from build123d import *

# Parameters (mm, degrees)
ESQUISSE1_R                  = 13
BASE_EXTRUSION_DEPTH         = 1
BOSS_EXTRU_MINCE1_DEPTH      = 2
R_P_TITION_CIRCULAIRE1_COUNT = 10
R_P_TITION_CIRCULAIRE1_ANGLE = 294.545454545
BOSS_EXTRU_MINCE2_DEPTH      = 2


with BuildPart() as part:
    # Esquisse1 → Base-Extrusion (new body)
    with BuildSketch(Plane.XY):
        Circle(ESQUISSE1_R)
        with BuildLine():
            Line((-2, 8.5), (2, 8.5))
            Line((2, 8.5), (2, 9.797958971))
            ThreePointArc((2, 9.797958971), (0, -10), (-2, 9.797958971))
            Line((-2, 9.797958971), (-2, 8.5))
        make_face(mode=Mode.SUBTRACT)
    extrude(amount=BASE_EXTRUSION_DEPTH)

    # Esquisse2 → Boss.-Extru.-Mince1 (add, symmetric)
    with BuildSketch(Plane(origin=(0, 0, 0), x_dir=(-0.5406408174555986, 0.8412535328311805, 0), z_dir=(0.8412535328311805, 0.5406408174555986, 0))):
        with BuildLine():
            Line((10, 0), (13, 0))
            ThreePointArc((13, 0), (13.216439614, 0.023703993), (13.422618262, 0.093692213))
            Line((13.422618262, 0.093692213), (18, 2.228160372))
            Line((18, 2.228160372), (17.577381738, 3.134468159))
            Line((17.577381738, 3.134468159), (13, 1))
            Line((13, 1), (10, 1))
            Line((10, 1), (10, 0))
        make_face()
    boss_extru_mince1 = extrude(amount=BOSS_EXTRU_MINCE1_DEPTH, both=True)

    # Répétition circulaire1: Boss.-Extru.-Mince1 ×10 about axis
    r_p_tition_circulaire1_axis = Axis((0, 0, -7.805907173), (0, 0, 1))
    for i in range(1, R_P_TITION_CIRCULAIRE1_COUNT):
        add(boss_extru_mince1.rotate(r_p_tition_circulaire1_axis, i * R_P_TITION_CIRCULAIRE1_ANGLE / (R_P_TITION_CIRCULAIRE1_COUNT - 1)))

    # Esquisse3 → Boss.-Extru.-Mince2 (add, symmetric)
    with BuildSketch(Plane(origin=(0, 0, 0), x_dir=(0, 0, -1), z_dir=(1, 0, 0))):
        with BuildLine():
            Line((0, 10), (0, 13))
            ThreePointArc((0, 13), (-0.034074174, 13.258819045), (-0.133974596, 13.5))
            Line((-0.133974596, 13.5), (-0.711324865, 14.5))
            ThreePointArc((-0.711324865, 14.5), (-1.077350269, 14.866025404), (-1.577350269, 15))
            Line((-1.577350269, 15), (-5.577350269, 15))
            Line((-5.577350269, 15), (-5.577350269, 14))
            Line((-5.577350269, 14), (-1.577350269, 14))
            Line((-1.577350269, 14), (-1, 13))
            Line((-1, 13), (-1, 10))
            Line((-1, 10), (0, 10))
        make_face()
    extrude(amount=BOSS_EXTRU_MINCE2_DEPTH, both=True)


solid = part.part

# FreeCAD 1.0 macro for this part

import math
import FreeCAD as App
import Part
import Sketcher
Q = App.Units.Quantity

doc = App.newDocument("Part")
body = doc.addObject("PartDesign::Body", "Body")

sketch1 = body.newObject("Sketcher::SketchObject", "Sketch")
sketch1.AttachmentSupport = (doc.getObject("XY_Plane"), [""])
sketch1.MapMode = "FlatFace"
sketch1.addGeometry([
    Part.Circle(App.Vector(0, 0, 0), App.Vector(0, 0, 1), 13),
    Part.LineSegment(App.Vector(-2, 9.8, 0), App.Vector(-2, 8.5, 0)),
    Part.LineSegment(App.Vector(-2, 8.5, 0), App.Vector(2, 8.5, 0)),
    Part.LineSegment(App.Vector(2, 8.5, 0), App.Vector(2, 9.8, 0)),
    Part.ArcOfCircle(Part.Circle(App.Vector(0, 0, 0), App.Vector(0, 0, 1), 10), math.radians(102), math.radians(438)),
], False)
sketch1.addConstraint([
    Sketcher.Constraint("Coincident", 1, 2, 2, 1),
    Sketcher.Constraint("Coincident", 2, 2, 3, 1),
    Sketcher.Constraint("Coincident", 3, 2, 4, 2),
    Sketcher.Constraint("Coincident", 4, 1, 1, 1),
    Sketcher.Constraint("Vertical", 1),
    Sketcher.Constraint("Horizontal", 2),
    Sketcher.Constraint("Vertical", 3),
    Sketcher.Constraint("Coincident", 0, 3, -1, 1),
    Sketcher.Constraint("Coincident", 4, 3, -1, 1),
    Sketcher.Constraint("Horizontal", 3, 2, 4, 1),
    Sketcher.Constraint("Diameter", 0, Q("26 mm")),
    Sketcher.Constraint("Radius", 4, Q("10 mm")),
    Sketcher.Constraint("DistanceX", 2, 1, 2, 2, Q("4 mm")),
    Sketcher.Constraint("DistanceY", -1, 1, 1, 2, Q("8.5 mm")),
])
pad1 = body.newObject("PartDesign::Pad", "Pad")
pad1.Profile = sketch1
pad1.Length = 1

sketch2 = body.newObject("Sketcher::SketchObject", "Sketch001")
sketch2.Placement = App.Placement(App.Vector(0, 0, 0), App.Rotation(App.Vector(-0.540640817, 0.841253533, 0), App.Vector(0, 0, 1), App.Vector(0.841253533, 0.540640817, 0), "ZXY"))
sketch2.addGeometry([
    Part.LineSegment(App.Vector(10, 0, 0), App.Vector(13, 0, 0)),
    Part.ArcOfCircle(Part.Circle(App.Vector(13, 1, 0), App.Vector(0, 0, 1), 1), math.radians(-90), math.radians(-65)),
    Part.LineSegment(App.Vector(13.42, 0.09, 0), App.Vector(18, 2.23, 0)),
    Part.LineSegment(App.Vector(18, 2.23, 0), App.Vector(17.58, 3.13, 0)),
    Part.LineSegment(App.Vector(17.58, 3.13, 0), App.Vector(13, 1, 0)),
    Part.LineSegment(App.Vector(13, 1, 0), App.Vector(10, 1, 0)),
    Part.LineSegment(App.Vector(10, 1, 0), App.Vector(10, 0, 0)),
], False)
sketch2.addConstraint([
    Sketcher.Constraint("Tangent", 0, 2, 1, 1),
    Sketcher.Constraint("Tangent", 1, 2, 2, 1),
    Sketcher.Constraint("Coincident", 2, 2, 3, 1),
    Sketcher.Constraint("Coincident", 3, 2, 4, 1),
    Sketcher.Constraint("Coincident", 4, 2, 5, 1),
    Sketcher.Constraint("Coincident", 5, 2, 6, 1),
    Sketcher.Constraint("Coincident", 6, 2, 0, 1),
    Sketcher.Constraint("Horizontal", 0),
    Sketcher.Constraint("Horizontal", 5),
    Sketcher.Constraint("Vertical", 6),
    Sketcher.Constraint("Coincident", 4, 2, 1, 3),
    Sketcher.Constraint("PointOnObject", 0, 2, -1),
    Sketcher.Constraint("Perpendicular", 2, 3),
    Sketcher.Constraint("Perpendicular", 3, 4),
    Sketcher.Constraint("Radius", 1, Q("1 mm")),
    Sketcher.Constraint("DistanceX", 0, 1, 0, 2, Q("3 mm")),
    Sketcher.Constraint("Angle", 2, Q("25 deg")),
    Sketcher.Constraint("DistanceX", -1, 1, 1, 3, Q("13 mm")),
    Sketcher.Constraint("DistanceX", -1, 1, 2, 2, Q("18 mm")),
])
pad2 = body.newObject("PartDesign::Pad", "Pad001")
pad2.Profile = sketch2
pad2.Length = 4
pad2.Midplane = True
doc.recompute()

polarpattern = body.newObject("PartDesign::PolarPattern", "PolarPattern")
polarpattern.Originals = [pad2]
polarpattern.Axis = (doc.getObject("Z_Axis"), [""])
polarpattern.Angle = 294.545455
polarpattern.Occurrences = 10
body.Tip = polarpattern

sketch3 = body.newObject("Sketcher::SketchObject", "Sketch002")
sketch3.AttachmentSupport = (doc.getObject("YZ_Plane"), [""])
sketch3.MapMode = "FlatFace"
sketch3.addGeometry([
    Part.LineSegment(App.Vector(10, 0, 0), App.Vector(13, 0, 0)),
    Part.ArcOfCircle(Part.Circle(App.Vector(13, 1, 0), App.Vector(0, 0, 1), 1), math.radians(-90), math.radians(-60)),
    Part.LineSegment(App.Vector(13.5, 0.1, 0), App.Vector(14.5, 0.7, 0)),
    Part.ArcOfCircle(Part.Circle(App.Vector(14, 1.6, 0), App.Vector(0, 0, 1), 1), math.radians(-60), math.radians(0)),
    Part.LineSegment(App.Vector(15, 1.6, 0), App.Vector(15, 5.6, 0)),
    Part.LineSegment(App.Vector(15, 5.6, 0), App.Vector(14, 5.6, 0)),
    Part.LineSegment(App.Vector(14, 5.6, 0), App.Vector(14, 1.6, 0)),
    Part.LineSegment(App.Vector(14, 1.6, 0), App.Vector(13, 1, 0)),
    Part.LineSegment(App.Vector(13, 1, 0), App.Vector(10, 1, 0)),
    Part.LineSegment(App.Vector(10, 1, 0), App.Vector(10, 0, 0)),
], False)
sketch3.addConstraint([
    Sketcher.Constraint("Tangent", 0, 2, 1, 1),
    Sketcher.Constraint("Tangent", 1, 2, 2, 1),
    Sketcher.Constraint("Tangent", 2, 2, 3, 1),
    Sketcher.Constraint("Tangent", 3, 2, 4, 1),
    Sketcher.Constraint("Coincident", 4, 2, 5, 1),
    Sketcher.Constraint("Coincident", 5, 2, 6, 1),
    Sketcher.Constraint("Coincident", 6, 2, 7, 1),
    Sketcher.Constraint("Coincident", 7, 2, 8, 1),
    Sketcher.Constraint("Coincident", 8, 2, 9, 1),
    Sketcher.Constraint("Coincident", 9, 2, 0, 1),
    Sketcher.Constraint("Horizontal", 0),
    Sketcher.Constraint("Vertical", 4),
    Sketcher.Constraint("Horizontal", 5),
    Sketcher.Constraint("Vertical", 6),
    Sketcher.Constraint("Horizontal", 8),
    Sketcher.Constraint("Vertical", 9),
    Sketcher.Constraint("Coincident", 6, 2, 3, 3),
    Sketcher.Constraint("Coincident", 7, 2, 1, 3),
    Sketcher.Constraint("Equal", 1, 3),
    Sketcher.Constraint("PointOnObject", 0, 2, -1),
    Sketcher.Constraint("Radius", 1, Q("1 mm")),
    Sketcher.Constraint("DistanceX", 0, 1, 0, 2, Q("3 mm")),
    Sketcher.Constraint("DistanceY", 4, 1, 4, 2, Q("4 mm")),
    Sketcher.Constraint("Angle", 2, Q("30 deg")),
    Sketcher.Constraint("DistanceX", -1, 1, 1, 3, Q("13 mm")),
    Sketcher.Constraint("DistanceX", -1, 1, 3, 3, Q("14 mm")),
])
pad3 = body.newObject("PartDesign::Pad", "Pad002")
pad3.Profile = sketch3
pad3.Length = 4
pad3.Midplane = True

doc.recompute()
